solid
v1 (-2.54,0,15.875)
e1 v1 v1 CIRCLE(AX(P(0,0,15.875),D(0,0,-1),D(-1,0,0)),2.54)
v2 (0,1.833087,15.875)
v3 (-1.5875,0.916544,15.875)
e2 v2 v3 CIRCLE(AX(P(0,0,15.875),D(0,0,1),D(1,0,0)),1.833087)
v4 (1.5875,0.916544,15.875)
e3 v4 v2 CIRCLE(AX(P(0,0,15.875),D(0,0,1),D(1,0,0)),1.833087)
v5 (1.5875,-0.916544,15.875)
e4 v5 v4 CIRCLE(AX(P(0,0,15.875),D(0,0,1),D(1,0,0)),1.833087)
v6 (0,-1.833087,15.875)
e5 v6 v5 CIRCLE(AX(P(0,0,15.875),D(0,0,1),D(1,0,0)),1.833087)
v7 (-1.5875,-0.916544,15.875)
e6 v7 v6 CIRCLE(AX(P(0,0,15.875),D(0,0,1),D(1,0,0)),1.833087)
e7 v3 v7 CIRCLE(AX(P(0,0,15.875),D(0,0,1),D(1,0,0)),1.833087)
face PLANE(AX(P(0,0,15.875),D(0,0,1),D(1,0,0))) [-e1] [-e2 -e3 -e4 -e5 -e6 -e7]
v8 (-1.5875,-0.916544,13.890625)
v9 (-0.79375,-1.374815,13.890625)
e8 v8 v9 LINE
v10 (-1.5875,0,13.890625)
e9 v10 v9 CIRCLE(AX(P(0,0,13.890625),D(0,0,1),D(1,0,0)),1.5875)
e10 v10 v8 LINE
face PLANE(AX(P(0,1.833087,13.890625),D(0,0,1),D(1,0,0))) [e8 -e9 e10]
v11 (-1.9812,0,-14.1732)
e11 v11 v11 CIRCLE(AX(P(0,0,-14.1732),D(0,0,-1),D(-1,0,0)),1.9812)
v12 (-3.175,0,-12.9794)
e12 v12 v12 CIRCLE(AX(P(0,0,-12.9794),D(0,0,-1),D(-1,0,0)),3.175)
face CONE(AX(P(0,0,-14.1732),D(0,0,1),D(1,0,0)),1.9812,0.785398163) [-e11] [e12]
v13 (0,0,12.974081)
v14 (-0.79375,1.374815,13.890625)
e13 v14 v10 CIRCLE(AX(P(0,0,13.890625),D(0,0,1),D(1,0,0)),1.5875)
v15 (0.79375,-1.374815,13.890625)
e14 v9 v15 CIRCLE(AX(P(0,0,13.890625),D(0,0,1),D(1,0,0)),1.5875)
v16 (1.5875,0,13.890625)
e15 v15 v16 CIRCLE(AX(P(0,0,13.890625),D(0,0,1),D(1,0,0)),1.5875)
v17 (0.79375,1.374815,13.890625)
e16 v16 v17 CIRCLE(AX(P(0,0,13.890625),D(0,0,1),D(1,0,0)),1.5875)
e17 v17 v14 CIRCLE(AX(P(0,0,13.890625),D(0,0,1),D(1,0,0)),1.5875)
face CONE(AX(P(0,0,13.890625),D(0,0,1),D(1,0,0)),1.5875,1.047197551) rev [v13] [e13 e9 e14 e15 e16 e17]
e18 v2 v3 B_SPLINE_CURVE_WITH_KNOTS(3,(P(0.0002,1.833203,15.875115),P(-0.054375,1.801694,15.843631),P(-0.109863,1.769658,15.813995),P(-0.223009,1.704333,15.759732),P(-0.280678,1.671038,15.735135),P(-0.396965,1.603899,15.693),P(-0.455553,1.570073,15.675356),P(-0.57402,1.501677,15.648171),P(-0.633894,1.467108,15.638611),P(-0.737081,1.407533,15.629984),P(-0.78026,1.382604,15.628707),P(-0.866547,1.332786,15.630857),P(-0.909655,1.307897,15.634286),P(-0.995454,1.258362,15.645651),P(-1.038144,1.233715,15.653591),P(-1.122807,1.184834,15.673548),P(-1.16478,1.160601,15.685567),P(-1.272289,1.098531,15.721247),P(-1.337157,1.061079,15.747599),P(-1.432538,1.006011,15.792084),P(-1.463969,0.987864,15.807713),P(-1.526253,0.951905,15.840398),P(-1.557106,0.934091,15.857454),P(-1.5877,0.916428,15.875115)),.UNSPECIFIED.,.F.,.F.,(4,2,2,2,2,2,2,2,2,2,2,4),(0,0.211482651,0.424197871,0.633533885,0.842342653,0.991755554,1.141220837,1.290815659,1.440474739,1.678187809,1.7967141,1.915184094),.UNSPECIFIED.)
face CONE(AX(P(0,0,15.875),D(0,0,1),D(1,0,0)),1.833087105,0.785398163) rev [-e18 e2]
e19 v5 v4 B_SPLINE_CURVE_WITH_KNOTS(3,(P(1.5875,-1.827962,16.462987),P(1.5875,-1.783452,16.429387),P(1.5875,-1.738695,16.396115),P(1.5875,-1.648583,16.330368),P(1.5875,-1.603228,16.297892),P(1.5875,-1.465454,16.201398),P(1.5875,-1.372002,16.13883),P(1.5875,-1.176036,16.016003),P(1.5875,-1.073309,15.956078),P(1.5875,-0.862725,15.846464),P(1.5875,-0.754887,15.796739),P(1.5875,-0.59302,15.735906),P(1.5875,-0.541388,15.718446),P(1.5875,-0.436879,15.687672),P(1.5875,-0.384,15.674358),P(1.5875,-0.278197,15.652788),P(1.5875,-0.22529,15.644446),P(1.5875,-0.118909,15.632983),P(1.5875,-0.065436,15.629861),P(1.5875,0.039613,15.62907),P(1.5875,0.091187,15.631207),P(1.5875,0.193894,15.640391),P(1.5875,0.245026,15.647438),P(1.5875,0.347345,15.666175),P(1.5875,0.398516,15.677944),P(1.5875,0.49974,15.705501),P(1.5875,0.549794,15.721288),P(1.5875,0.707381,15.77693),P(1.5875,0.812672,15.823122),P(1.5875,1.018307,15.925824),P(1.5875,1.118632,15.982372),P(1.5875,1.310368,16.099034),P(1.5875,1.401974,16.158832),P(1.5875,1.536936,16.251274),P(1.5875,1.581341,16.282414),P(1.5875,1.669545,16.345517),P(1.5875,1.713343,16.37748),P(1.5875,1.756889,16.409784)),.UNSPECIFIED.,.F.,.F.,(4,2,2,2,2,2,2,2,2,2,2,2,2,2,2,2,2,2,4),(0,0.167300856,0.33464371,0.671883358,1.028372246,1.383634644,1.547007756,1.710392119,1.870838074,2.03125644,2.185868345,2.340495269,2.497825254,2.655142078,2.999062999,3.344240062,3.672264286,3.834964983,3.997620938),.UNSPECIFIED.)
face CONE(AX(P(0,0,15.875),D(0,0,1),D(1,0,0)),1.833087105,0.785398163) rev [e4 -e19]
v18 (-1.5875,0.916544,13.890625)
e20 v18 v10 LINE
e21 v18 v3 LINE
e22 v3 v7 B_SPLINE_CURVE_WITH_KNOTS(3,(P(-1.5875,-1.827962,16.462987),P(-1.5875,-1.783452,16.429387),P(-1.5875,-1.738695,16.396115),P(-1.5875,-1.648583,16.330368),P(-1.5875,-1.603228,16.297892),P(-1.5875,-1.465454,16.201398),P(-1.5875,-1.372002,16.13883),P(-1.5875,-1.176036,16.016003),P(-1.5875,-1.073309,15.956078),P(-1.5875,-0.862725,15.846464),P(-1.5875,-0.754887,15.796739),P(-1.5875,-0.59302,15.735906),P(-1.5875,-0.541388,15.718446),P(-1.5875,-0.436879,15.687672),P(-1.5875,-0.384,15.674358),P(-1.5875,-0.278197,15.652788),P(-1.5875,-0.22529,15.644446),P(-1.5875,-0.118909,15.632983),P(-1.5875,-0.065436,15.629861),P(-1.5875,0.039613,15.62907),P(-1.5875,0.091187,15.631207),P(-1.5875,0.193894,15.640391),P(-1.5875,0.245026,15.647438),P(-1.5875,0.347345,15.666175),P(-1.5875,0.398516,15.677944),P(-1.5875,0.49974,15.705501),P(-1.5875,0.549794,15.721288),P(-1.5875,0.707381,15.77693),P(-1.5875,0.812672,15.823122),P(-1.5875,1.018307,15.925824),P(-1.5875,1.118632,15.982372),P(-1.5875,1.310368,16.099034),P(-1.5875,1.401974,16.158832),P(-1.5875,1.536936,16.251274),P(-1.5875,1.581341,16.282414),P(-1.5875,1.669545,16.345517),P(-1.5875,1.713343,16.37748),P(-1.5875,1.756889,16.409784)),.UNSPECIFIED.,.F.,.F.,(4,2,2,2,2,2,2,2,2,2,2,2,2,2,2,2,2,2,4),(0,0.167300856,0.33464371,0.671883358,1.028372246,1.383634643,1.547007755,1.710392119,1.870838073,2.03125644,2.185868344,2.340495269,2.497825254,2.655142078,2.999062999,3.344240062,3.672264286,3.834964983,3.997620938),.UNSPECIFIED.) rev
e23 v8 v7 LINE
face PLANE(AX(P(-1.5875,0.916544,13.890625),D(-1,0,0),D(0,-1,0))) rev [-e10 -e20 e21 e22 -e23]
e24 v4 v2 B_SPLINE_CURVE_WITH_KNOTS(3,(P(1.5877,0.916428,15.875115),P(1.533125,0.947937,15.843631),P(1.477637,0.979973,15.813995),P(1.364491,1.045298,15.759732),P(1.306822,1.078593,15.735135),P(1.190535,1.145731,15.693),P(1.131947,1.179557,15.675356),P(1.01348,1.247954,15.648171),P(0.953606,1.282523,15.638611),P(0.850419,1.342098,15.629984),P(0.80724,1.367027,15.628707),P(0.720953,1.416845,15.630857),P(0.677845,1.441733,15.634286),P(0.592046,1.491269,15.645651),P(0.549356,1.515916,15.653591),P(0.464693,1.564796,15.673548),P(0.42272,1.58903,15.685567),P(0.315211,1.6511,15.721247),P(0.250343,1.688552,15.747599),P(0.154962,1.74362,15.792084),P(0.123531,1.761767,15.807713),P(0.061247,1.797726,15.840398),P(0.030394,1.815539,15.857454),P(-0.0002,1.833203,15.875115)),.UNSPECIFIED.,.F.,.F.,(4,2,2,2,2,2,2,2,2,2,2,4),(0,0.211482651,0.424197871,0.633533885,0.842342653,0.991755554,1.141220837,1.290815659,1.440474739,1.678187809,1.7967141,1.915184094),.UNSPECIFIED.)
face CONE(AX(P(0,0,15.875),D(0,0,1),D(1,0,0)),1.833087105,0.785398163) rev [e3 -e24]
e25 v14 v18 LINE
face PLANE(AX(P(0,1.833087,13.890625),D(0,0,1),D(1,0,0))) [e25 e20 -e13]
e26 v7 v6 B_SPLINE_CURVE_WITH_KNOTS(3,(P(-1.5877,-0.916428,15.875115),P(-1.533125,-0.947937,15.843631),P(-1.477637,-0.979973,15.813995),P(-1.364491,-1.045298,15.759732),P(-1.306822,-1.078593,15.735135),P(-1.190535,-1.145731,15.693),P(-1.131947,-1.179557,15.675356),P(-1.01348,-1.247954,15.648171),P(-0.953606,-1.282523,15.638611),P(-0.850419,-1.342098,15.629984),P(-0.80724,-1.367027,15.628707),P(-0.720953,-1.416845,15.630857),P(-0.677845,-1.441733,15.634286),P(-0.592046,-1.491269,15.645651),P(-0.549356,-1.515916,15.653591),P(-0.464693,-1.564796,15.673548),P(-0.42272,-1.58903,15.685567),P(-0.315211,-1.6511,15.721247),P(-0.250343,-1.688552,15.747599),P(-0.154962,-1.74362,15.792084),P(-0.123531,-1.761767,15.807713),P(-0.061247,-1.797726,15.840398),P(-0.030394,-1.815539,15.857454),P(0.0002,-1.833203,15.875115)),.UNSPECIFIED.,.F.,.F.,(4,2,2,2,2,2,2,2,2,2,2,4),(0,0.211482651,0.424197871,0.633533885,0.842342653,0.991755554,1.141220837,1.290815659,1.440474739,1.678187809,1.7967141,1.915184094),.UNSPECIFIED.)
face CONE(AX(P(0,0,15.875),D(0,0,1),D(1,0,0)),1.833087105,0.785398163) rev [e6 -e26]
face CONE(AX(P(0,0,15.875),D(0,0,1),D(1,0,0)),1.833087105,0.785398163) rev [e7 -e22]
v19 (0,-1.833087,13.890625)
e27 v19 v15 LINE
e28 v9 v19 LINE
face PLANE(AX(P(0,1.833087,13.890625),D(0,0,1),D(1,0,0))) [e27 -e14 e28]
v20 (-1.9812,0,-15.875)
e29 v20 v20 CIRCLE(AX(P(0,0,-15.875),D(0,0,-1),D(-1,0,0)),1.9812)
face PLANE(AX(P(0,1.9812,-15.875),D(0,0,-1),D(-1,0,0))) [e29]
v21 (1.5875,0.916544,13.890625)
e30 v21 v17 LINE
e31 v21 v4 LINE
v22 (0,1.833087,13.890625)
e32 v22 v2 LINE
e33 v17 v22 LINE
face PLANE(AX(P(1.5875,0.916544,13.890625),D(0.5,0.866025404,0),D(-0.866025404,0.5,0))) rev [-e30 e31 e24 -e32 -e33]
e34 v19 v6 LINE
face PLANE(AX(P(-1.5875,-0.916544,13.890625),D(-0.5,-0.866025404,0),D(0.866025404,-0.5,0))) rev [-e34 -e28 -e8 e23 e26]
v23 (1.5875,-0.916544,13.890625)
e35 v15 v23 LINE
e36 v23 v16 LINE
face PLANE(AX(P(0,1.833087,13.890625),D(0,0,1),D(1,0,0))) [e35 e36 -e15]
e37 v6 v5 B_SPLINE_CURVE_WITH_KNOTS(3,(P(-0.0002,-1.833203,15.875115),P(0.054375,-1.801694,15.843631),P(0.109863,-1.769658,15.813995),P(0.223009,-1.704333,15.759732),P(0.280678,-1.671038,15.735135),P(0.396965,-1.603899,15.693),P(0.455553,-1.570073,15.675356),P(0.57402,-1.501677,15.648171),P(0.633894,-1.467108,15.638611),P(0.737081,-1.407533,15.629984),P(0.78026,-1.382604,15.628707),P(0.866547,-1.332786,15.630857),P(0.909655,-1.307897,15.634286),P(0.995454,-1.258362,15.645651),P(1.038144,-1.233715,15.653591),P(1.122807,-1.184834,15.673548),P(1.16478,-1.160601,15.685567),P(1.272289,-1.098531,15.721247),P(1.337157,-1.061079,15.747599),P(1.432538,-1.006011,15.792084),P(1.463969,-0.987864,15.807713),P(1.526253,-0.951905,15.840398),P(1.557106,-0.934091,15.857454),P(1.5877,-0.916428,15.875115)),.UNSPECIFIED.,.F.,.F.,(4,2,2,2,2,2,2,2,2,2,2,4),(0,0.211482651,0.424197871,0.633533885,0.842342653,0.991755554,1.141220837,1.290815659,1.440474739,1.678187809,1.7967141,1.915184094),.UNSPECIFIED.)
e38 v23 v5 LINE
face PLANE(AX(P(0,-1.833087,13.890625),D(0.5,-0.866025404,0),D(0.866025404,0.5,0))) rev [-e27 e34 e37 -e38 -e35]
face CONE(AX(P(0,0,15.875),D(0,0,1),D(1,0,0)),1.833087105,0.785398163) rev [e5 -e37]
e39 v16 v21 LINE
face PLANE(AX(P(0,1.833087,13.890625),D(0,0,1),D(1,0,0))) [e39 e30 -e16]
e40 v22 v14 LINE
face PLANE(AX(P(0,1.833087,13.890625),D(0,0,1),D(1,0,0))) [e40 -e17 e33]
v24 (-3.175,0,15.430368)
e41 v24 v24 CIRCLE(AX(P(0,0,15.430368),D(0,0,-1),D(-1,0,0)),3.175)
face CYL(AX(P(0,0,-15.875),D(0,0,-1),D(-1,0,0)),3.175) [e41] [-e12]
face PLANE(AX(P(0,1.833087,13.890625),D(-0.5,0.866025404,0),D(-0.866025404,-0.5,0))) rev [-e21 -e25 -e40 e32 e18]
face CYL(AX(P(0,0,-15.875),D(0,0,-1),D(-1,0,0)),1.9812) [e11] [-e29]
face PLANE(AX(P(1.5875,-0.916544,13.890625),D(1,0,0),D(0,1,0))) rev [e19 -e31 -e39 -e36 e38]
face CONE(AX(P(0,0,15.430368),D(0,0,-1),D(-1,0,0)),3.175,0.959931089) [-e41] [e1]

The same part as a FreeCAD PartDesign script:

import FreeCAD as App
import Part
import Sketcher
Q = App.Units.Quantity

doc = App.newDocument("Part")
body = doc.addObject("PartDesign::Body", "Body")

sketch1 = doc.addObject("Sketcher::SketchObject", "Sketch")
body.addObject(sketch1)
sketch1.AttachmentSupport = (doc.YZ_Plane, [""])
sketch1.MapMode = "FlatFace"
sketch1.addGeometry(Part.LineSegment(App.Vector(2.54, 15.875, 0), App.Vector(0, 15.875, 0)), False)
sketch1.addGeometry(Part.LineSegment(App.Vector(0, 15.875, 0), App.Vector(0, -15.875, 0)), False)
sketch1.addGeometry(Part.LineSegment(App.Vector(0, -15.875, 0), App.Vector(1.9812, -15.875, 0)), False)
sketch1.addGeometry(Part.LineSegment(App.Vector(1.9812, -15.875, 0), App.Vector(1.9812, -14.1732, 0)), False)
sketch1.addGeometry(Part.LineSegment(App.Vector(1.9812, -14.1732, 0), App.Vector(3.175, -12.9794, 0)), False)
sketch1.addGeometry(Part.LineSegment(App.Vector(3.175, -12.9794, 0), App.Vector(3.175, 15.430368, 0)), False)
sketch1.addGeometry(Part.LineSegment(App.Vector(3.175, 15.430368, 0), App.Vector(2.54, 15.875, 0)), False)
sketch1.addConstraint(Sketcher.Constraint("Coincident", 0, 2, 1, 1))
sketch1.addConstraint(Sketcher.Constraint("Coincident", 1, 2, 2, 1))
sketch1.addConstraint(Sketcher.Constraint("Coincident", 2, 2, 3, 1))
sketch1.addConstraint(Sketcher.Constraint("Coincident", 3, 2, 4, 1))
sketch1.addConstraint(Sketcher.Constraint("Coincident", 4, 2, 5, 1))
sketch1.addConstraint(Sketcher.Constraint("Coincident", 5, 2, 6, 1))
sketch1.addConstraint(Sketcher.Constraint("Coincident", 6, 2, 0, 1))
sketch1.addConstraint(Sketcher.Constraint("Horizontal", 0))
sketch1.addConstraint(Sketcher.Constraint("Vertical", 1))
sketch1.addConstraint(Sketcher.Constraint("Horizontal", 2))
sketch1.addConstraint(Sketcher.Constraint("Vertical", 3))
sketch1.addConstraint(Sketcher.Constraint("Vertical", 5))
sketch1.addConstraint(Sketcher.Constraint("Symmetric", 0, 2, 1, 2, -1, 1))
sketch1.addConstraint(Sketcher.Constraint("DistanceX", 0, 2, 0, 1, Q("0.1 in")))
sketch1.addConstraint(Sketcher.Constraint("Angle", 4, Q("45 deg")))
sketch1.addConstraint(Sketcher.Constraint("Angle", 6, Q("145 deg")))
sketch1.addConstraint(Sketcher.Constraint("DistanceY", 1, 2, 1, 1, Q("1.25 in")))
sketch1.addConstraint(Sketcher.Constraint("DistanceX", 2, 1, 2, 2, Q("0.078 in")))
sketch1.addConstraint(Sketcher.Constraint("DistanceY", 3, 1, 3, 2, Q("0.067 in")))
sketch1.addConstraint(Sketcher.Constraint("DistanceX", -1, 1, 4, 2, Q("0.125 in")))
revolution = doc.addObject("PartDesign::Revolution", "Revolution")
body.addObject(revolution)
revolution.Profile = sketch1
revolution.ReferenceAxis = (sketch1, ["V_Axis"])
revolution.Angle = 360

sketch2 = doc.addObject("Sketcher::SketchObject", "Sketch001")
body.addObject(sketch2)
sketch2.AttachmentSupport = (doc.XY_Plane, [""])
sketch2.MapMode = "FlatFace"
sketch2.AttachmentOffset = App.Placement(App.Vector(0, 0, 0.625 * 25.4), App.Rotation())
sketch2.addGeometry(Part.LineSegment(App.Vector(0, 1.833087, 0), App.Vector(-1.5875, 0.916544, 0)), False)
sketch2.addGeometry(Part.LineSegment(App.Vector(-1.5875, 0.916544, 0), App.Vector(-1.5875, -0.916544, 0)), False)
sketch2.addGeometry(Part.LineSegment(App.Vector(-1.5875, -0.916544, 0), App.Vector(0, -1.833087, 0)), False)
sketch2.addGeometry(Part.LineSegment(App.Vector(0, -1.833087, 0), App.Vector(1.5875, -0.916544, 0)), False)
sketch2.addGeometry(Part.LineSegment(App.Vector(1.5875, -0.916544, 0), App.Vector(1.5875, 0.916544, 0)), False)
sketch2.addGeometry(Part.LineSegment(App.Vector(1.5875, 0.916544, 0), App.Vector(0, 1.833087, 0)), False)
sketch2.addConstraint(Sketcher.Constraint("Coincident", 0, 2, 1, 1))
sketch2.addConstraint(Sketcher.Constraint("Coincident", 1, 2, 2, 1))
sketch2.addConstraint(Sketcher.Constraint("Coincident", 2, 2, 3, 1))
sketch2.addConstraint(Sketcher.Constraint("Coincident", 3, 2, 4, 1))
sketch2.addConstraint(Sketcher.Constraint("Coincident", 4, 2, 5, 1))
sketch2.addConstraint(Sketcher.Constraint("Coincident", 5, 2, 0, 1))
sketch2.addConstraint(Sketcher.Constraint("Vertical", 1))
sketch2.addConstraint(Sketcher.Constraint("Vertical", 4))
sketch2.addConstraint(Sketcher.Constraint("Symmetric", 0, 2, 3, 2, -1, 1))
sketch2.addConstraint(Sketcher.Constraint("Symmetric", 2, 2, 5, 2, -1, 1))
sketch2.addConstraint(Sketcher.Constraint("PointOnObject", 2, 2, -2))
sketch2.addConstraint(Sketcher.Constraint("Parallel", 2, 5))
sketch2.addConstraint(Sketcher.Constraint("Horizontal", 1, 2, 3, 2))
sketch2.addConstraint(Sketcher.Constraint("Angle", 0, Q("-150 deg")))
sketch2.addConstraint(Sketcher.Constraint("DistanceX", 0, 2, -1, 1, Q("0.0625 in")))
sketch2.addConstraint(Sketcher.Constraint("DistanceY", 1, 2, 1, 1, 1.833087))
pocket1 = doc.addObject("PartDesign::Pocket", "Pocket")
body.addObject(pocket1)
pocket1.Profile = sketch2
pocket1.Length = Q("0.078125 in")

sketch3 = doc.addObject("Sketcher::SketchObject", "Sketch002")
body.addObject(sketch3)
sketch3.AttachmentSupport = (doc.YZ_Plane, [""])
sketch3.MapMode = "FlatFace"
sketch3.addGeometry(Part.LineSegment(App.Vector(0, 15.875, 0), App.Vector(-1.833087, 15.875, 0)), False)
sketch3.addGeometry(Part.LineSegment(App.Vector(-1.833087, 15.875, 0), App.Vector(0, 14.041913, 0)), False)
sketch3.addGeometry(Part.LineSegment(App.Vector(0, 14.041913, 0), App.Vector(0, 15.875, 0)), False)
sketch3.addConstraint(Sketcher.Constraint("Coincident", 0, 2, 1, 1))
sketch3.addConstraint(Sketcher.Constraint("Coincident", 1, 2, 2, 1))
sketch3.addConstraint(Sketcher.Constraint("Coincident", 2, 2, 0, 1))
sketch3.addConstraint(Sketcher.Constraint("Horizontal", 0))
sketch3.addConstraint(Sketcher.Constraint("Vertical", 2))
sketch3.addConstraint(Sketcher.Constraint("PointOnObject", 1, 2, -2))
sketch3.addConstraint(Sketcher.Constraint("Equal", 0, 2))
sketch3.addConstraint(Sketcher.Constraint("DistanceY", -1, 1, 0, 2, Q("0.625 in")))
sketch3.addConstraint(Sketcher.Constraint("DistanceX", 0, 2, 0, 1, 1.833087))
groove = doc.addObject("PartDesign::Groove", "Groove")
body.addObject(groove)
groove.Profile = sketch3
groove.ReferenceAxis = (sketch3, ["V_Axis"])
groove.Angle = 360

sketch4 = doc.addObject("Sketcher::SketchObject", "Sketch003")
body.addObject(sketch4)
sketch4.AttachmentSupport = (doc.YZ_Plane, [""])
sketch4.MapMode = "FlatFace"
sketch4.addGeometry(Part.LineSegment(App.Vector(0, 13.890625, 0), App.Vector(-1.5875, 13.890625, 0)), False)
sketch4.addGeometry(Part.LineSegment(App.Vector(-1.5875, 13.890625, 0), App.Vector(0, 12.974081, 0)), False)
sketch4.addGeometry(Part.LineSegment(App.Vector(0, 12.974081, 0), App.Vector(0, 13.890625, 0)), False)
sketch4.addConstraint(Sketcher.Constraint("Coincident", 0, 2, 1, 1))
sketch4.addConstraint(Sketcher.Constraint("Coincident", 1, 2, 2, 1))
sketch4.addConstraint(Sketcher.Constraint("Coincident", 2, 2, 0, 1))
sketch4.addConstraint(Sketcher.Constraint("Horizontal", 0))
sketch4.addConstraint(Sketcher.Constraint("Vertical", 2))
sketch4.addConstraint(Sketcher.Constraint("PointOnObject", 1, 2, -2))
sketch4.addConstraint(Sketcher.Constraint("Angle", 1, Q("-30 deg")))
sketch4.addConstraint(Sketcher.Constraint("DistanceX", 0, 2, 0, 1, Q("0.0625 in")))
sketch4.addConstraint(Sketcher.Constraint("DistanceY", -1, 1, 0, 2, Q("0.546875 in")))
groove2 = doc.addObject("PartDesign::Groove", "Groove001")
body.addObject(groove2)
groove2.Profile = sketch4
groove2.ReferenceAxis = (sketch4, ["V_Axis"])
groove2.Angle = 360

doc.recompute()
